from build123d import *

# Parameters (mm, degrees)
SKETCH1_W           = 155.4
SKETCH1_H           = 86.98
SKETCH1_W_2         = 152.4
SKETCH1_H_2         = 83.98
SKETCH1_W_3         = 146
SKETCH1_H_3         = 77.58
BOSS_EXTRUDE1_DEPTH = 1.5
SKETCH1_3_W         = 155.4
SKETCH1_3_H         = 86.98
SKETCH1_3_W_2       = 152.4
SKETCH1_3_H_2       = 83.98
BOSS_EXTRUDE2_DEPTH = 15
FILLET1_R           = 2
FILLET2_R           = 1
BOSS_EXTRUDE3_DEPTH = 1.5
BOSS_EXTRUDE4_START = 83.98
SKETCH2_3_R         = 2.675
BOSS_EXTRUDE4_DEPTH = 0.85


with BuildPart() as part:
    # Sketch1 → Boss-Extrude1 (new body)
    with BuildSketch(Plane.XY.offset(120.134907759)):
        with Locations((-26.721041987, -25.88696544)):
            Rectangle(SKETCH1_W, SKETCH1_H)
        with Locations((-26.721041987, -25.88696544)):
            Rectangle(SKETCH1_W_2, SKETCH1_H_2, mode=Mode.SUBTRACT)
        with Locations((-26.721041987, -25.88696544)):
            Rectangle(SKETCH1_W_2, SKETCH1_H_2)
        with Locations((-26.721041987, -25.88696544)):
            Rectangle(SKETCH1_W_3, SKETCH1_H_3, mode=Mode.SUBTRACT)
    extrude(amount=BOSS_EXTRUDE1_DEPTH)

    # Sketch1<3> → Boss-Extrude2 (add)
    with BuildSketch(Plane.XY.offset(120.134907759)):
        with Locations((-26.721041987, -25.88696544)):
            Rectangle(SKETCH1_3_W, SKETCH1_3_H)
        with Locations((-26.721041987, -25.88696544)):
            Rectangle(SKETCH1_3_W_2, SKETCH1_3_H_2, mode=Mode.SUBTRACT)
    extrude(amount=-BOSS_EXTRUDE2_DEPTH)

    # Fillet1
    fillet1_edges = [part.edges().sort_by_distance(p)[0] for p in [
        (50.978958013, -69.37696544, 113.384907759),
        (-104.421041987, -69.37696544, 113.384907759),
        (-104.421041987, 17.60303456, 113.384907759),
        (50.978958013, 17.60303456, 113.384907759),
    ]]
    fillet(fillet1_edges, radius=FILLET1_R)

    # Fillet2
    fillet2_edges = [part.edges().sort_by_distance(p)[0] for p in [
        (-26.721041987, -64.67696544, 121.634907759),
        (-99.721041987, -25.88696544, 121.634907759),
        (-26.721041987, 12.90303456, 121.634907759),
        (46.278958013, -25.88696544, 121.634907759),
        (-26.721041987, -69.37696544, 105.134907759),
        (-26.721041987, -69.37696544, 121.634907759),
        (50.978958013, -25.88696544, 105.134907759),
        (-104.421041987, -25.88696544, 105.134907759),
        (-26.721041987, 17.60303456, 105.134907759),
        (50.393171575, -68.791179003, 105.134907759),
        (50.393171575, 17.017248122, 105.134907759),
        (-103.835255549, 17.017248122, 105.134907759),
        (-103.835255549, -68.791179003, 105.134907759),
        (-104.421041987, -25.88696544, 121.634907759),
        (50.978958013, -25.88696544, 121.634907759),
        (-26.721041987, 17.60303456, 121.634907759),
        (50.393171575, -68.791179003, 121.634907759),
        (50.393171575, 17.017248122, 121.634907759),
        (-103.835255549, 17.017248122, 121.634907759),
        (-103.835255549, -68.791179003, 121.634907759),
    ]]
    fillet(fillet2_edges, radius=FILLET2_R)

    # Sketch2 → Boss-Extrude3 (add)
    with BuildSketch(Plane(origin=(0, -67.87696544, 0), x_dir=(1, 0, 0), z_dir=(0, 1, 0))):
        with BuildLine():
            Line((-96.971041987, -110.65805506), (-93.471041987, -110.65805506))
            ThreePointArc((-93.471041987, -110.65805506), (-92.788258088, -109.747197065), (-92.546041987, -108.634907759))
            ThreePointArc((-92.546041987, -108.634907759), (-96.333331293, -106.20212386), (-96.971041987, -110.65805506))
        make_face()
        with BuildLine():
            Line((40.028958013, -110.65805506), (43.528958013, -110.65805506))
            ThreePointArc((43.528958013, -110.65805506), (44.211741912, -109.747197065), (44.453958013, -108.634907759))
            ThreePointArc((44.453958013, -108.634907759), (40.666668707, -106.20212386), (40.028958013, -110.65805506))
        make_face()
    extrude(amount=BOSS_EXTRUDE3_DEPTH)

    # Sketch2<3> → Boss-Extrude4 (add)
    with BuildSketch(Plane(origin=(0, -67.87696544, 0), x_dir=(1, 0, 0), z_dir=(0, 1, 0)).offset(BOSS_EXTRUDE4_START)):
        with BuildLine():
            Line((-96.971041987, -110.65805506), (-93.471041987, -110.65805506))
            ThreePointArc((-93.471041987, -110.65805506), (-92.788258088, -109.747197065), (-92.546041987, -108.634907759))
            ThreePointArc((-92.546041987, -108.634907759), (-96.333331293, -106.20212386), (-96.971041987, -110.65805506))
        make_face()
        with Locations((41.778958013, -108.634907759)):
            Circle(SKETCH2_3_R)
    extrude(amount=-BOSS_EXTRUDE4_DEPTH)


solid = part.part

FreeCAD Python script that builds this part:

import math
import FreeCAD as App
import Part
import Sketcher

V = App.Vector


def edges_at(feature, points):
    """Names of the edges that pass closest to the given points."""
    edges = feature.Shape.Edges
    near = lambda p: min(range(len(edges)), key=lambda i: edges[i].distToShape(Part.Vertex(*p))[0])
    return sorted({f"Edge{near(p) + 1}" for p in points})


def add_polygon(sketch, points):
    """Adds a closed chain of lines whose ends are joined by coincident constraints."""
    first, n = sketch.GeometryCount, len(points)
    for a, b in zip(points, points[1:] + points[:1]):
        sketch.addGeometry(Part.LineSegment(App.Vector(*a, 0), App.Vector(*b, 0)), False)
    for i in range(n):
        sketch.addConstraint(Sketcher.Constraint("Coincident", first + i, 2, first + (i + 1) % n, 1))

doc = App.newDocument("Part")
body = doc.addObject("PartDesign::Body", "Body")

# Sketch on XY plane
sketch1 = body.newObject("Sketcher::SketchObject", "Sketch")
sketch1.AttachmentSupport = (doc.getObject("XY_Plane"), [""])
sketch1.MapMode = "FlatFace"
sketch1.AttachmentOffset = App.Placement(V(0, 0, 120.134908), App.Rotation())
add_polygon(sketch1, [(-104, 18), (-104, -69), (51, -69), (51, 18)])  # lines 0-3
add_polygon(sketch1, [(46, -65), (-100, -65), (-100, 13), (46, 13)])  # lines 4-7
sketch1.addConstraint(Sketcher.Constraint("Vertical", 0))
sketch1.addConstraint(Sketcher.Constraint("Horizontal", 1))
sketch1.addConstraint(Sketcher.Constraint("Vertical", 2))
sketch1.addConstraint(Sketcher.Constraint("Horizontal", 3))
sketch1.addConstraint(Sketcher.Constraint("Horizontal", 4))
sketch1.addConstraint(Sketcher.Constraint("Vertical", 5))
sketch1.addConstraint(Sketcher.Constraint("Horizontal", 6))
sketch1.addConstraint(Sketcher.Constraint("Vertical", 7))
sketch1.addConstraint(Sketcher.Constraint("DistanceX", 4, 2, 4, 1, 146.0))
sketch1.addConstraint(Sketcher.Constraint("DistanceX", 1, 1, 1, 2, 155.4))
sketch1.addConstraint(Sketcher.Constraint("DistanceY", 0, 2, 0, 1, 86.98))
sketch1.addConstraint(Sketcher.Constraint("DistanceY", 5, 1, 5, 2, 77.58))
sketch1.addConstraint(Sketcher.Constraint("DistanceX", 0, 2, 4, 2, 4.7))
sketch1.addConstraint(Sketcher.Constraint("DistanceY", 0, 2, 4, 2, 4.7))
sketch1.addConstraint(Sketcher.Constraint("DistanceX", 0, 2, -1, 1, 104.421042))
sketch1.addConstraint(Sketcher.Constraint("DistanceY", 0, 2, -1, 1, 69.376965))
pad1 = body.newObject("PartDesign::Pad", "Pad")
pad1.Profile = sketch1
pad1.Length = 1.5

# Sketch on XY plane
sketch2 = body.newObject("Sketcher::SketchObject", "Sketch001")
sketch2.AttachmentSupport = (doc.getObject("XY_Plane"), [""])
sketch2.MapMode = "FlatFace"
sketch2.AttachmentOffset = App.Placement(V(0, 0, 120.134908), App.Rotation())
add_polygon(sketch2, [(-104, 18), (-104, -69), (51, -69), (51, 18)])  # lines 0-3
add_polygon(sketch2, [(49, -68), (-103, -68), (-103, 16), (49, 16)])  # lines 4-7
sketch2.addConstraint(Sketcher.Constraint("Vertical", 0))
sketch2.addConstraint(Sketcher.Constraint("Horizontal", 1))
sketch2.addConstraint(Sketcher.Constraint("Vertical", 2))
sketch2.addConstraint(Sketcher.Constraint("Horizontal", 3))
sketch2.addConstraint(Sketcher.Constraint("Horizontal", 4))
sketch2.addConstraint(Sketcher.Constraint("Vertical", 5))
sketch2.addConstraint(Sketcher.Constraint("Horizontal", 6))
sketch2.addConstraint(Sketcher.Constraint("Vertical", 7))
sketch2.addConstraint(Sketcher.Constraint("DistanceX", 1, 1, 1, 2, 155.4))
sketch2.addConstraint(Sketcher.Constraint("DistanceX", 4, 2, 4, 1, 152.4))
sketch2.addConstraint(Sketcher.Constraint("DistanceY", 0, 2, 0, 1, 86.98))
sketch2.addConstraint(Sketcher.Constraint("DistanceY", 5, 1, 5, 2, 83.98))
sketch2.addConstraint(Sketcher.Constraint("DistanceX", 0, 2, 4, 2, 1.5))
sketch2.addConstraint(Sketcher.Constraint("DistanceY", 0, 2, 4, 2, 1.5))
sketch2.addConstraint(Sketcher.Constraint("DistanceX", 0, 2, -1, 1, 104.421042))
sketch2.addConstraint(Sketcher.Constraint("DistanceY", 0, 2, -1, 1, 69.376965))
pad2 = body.newObject("PartDesign::Pad", "Pad001")
pad2.Profile = sketch2
pad2.Length = 15
pad2.Reversed = True
doc.recompute()

fillet = body.newObject("PartDesign::Fillet", "Fillet")
fillet.Base = (pad2, edges_at(pad2, [
    (50.979, -69.377, 113.385),
    (-104.421, -69.377, 113.385),
    (-104.421, 17.603, 113.385),
    (50.979, 17.603, 113.385),
]))
fillet.Radius = 2
doc.recompute()

fillet2 = body.newObject("PartDesign::Fillet", "Fillet001")
fillet2.Base = (fillet, edges_at(fillet, [
    (-26.721, -64.677, 121.635),
    (-99.721, -25.887, 121.635),
    (-26.721, 12.903, 121.635),
    (46.279, -25.887, 121.635),
    (-26.721, -69.377, 105.135),
    (-26.721, -69.377, 121.635),
    (50.979, -25.887, 105.135),
    (-104.421, -25.887, 105.135),
    (-26.721, 17.603, 105.135),
    (50.393, -68.791, 105.135),
    (50.393, 17.017, 105.135),
    (-103.835, 17.017, 105.135),
    (-103.835, -68.791, 105.135),
    (-104.421, -25.887, 121.635),
    (50.979, -25.887, 121.635),
    (-26.721, 17.603, 121.635),
    (50.393, -68.791, 121.635),
    (50.393, 17.017, 121.635),
    (-103.835, 17.017, 121.635),
    (-103.835, -68.791, 121.635),
]))
fillet2.Radius = 1

# Sketch on XZ plane
sketch3 = body.newObject("Sketcher::SketchObject", "Sketch002")
sketch3.AttachmentSupport = (doc.getObject("XZ_Plane"), [""])
sketch3.MapMode = "FlatFace"
sketch3.AttachmentOffset = App.Placement(V(0, 0, 67.876965), App.Rotation())
sketch3.addGeometry(Part.LineSegment(V(-97, 110.7, 0), V(-93.5, 110.7, 0)), False)
sketch3.addGeometry(Part.ArcOfCircle(Part.Circle(V(-95.2, 108.6, 0), V(0, 0, 1), 2.7), math.radians(0), math.radians(49)), False)
sketch3.addGeometry(Part.ArcOfCircle(Part.Circle(V(-95.2, 108.6, 0), V(0, 0, 1), 2.7), math.radians(131), math.radians(360)), False)
sketch3.addGeometry(Part.LineSegment(V(40, 110.7, 0), V(43.5, 110.7, 0)), False)
sketch3.addGeometry(Part.ArcOfCircle(Part.Circle(V(41.8, 108.6, 0), V(0, 0, 1), 2.7), math.radians(0), math.radians(49)), False)
sketch3.addGeometry(Part.ArcOfCircle(Part.Circle(V(41.8, 108.6, 0), V(0, 0, 1), 2.7), math.radians(131), math.radians(360)), False)
sketch3.addConstraint(Sketcher.Constraint("Coincident", 0, 2, 1, 2))
sketch3.addConstraint(Sketcher.Constraint("Tangent", 1, 1, 2, 2))
sketch3.addConstraint(Sketcher.Constraint("Coincident", 2, 1, 0, 1))
sketch3.addConstraint(Sketcher.Constraint("Coincident", 3, 2, 4, 2))
sketch3.addConstraint(Sketcher.Constraint("Tangent", 4, 1, 5, 2))
sketch3.addConstraint(Sketcher.Constraint("Coincident", 5, 1, 3, 1))
sketch3.addConstraint(Sketcher.Constraint("Horizontal", 0))
sketch3.addConstraint(Sketcher.Constraint("Horizontal", 3))
sketch3.addConstraint(Sketcher.Constraint("Equal", 1, 2))
sketch3.addConstraint(Sketcher.Constraint("Equal", 2, 4))
sketch3.addConstraint(Sketcher.Constraint("Equal", 4, 5))
sketch3.addConstraint(Sketcher.Constraint("Horizontal", 2, 3, 4, 3))
sketch3.addConstraint(Sketcher.Constraint("Horizontal", 5, 3, 1, 1))
sketch3.addConstraint(Sketcher.Constraint("Horizontal", 2, 1, 3, 2))
sketch3.addConstraint(Sketcher.Constraint("Horizontal", 1, 1, 4, 1))
sketch3.addConstraint(Sketcher.Constraint("DistanceX", 0, 1, 0, 2, 3.5))
sketch3.addConstraint(Sketcher.Constraint("Radius", 1, 2.675))
sketch3.addConstraint(Sketcher.Constraint("DistanceX", 2, 3, 4, 3, 137.0))
sketch3.addConstraint(Sketcher.Constraint("DistanceX", 1, 3, -1, 1, 95.221042))
sketch3.addConstraint(Sketcher.Constraint("DistanceY", -1, 1, 1, 3, 108.634908))
pad3 = body.newObject("PartDesign::Pad", "Pad002")
pad3.Profile = sketch3
pad3.Length = 1.5
pad3.Reversed = True

# Sketch on XZ plane
sketch4 = body.newObject("Sketcher::SketchObject", "Sketch003")
sketch4.AttachmentSupport = (doc.getObject("XZ_Plane"), [""])
sketch4.MapMode = "FlatFace"
sketch4.AttachmentOffset = App.Placement(V(0, 0, -16.103035), App.Rotation())
sketch4.addGeometry(Part.LineSegment(V(-97, 110.7, 0), V(-93.5, 110.7, 0)), False)
sketch4.addGeometry(Part.ArcOfCircle(Part.Circle(V(-95.2, 108.6, 0), V(0, 0, 1), 2.7), math.radians(0), math.radians(49)), False)
sketch4.addGeometry(Part.ArcOfCircle(Part.Circle(V(-95.2, 108.6, 0), V(0, 0, 1), 2.7), math.radians(131), math.radians(360)), False)
sketch4.addGeometry(Part.Circle(V(41.8, 108.6, 0), V(0, 0, 1), 2.7), False)
sketch4.addConstraint(Sketcher.Constraint("Coincident", 0, 2, 1, 2))
sketch4.addConstraint(Sketcher.Constraint("Tangent", 1, 1, 2, 2))
sketch4.addConstraint(Sketcher.Constraint("Coincident", 2, 1, 0, 1))
sketch4.addConstraint(Sketcher.Constraint("Horizontal", 0))
sketch4.addConstraint(Sketcher.Constraint("Equal", 1, 2))
sketch4.addConstraint(Sketcher.Constraint("Equal", 2, 3))
sketch4.addConstraint(Sketcher.Constraint("Horizontal", 2, 3, 3, 3))
sketch4.addConstraint(Sketcher.Constraint("Horizontal", 3, 3, 1, 1))
sketch4.addConstraint(Sketcher.Constraint("Diameter", 3, 5.35))
sketch4.addConstraint(Sketcher.Constraint("DistanceX", 0, 1, 0, 2, 3.5))
sketch4.addConstraint(Sketcher.Constraint("DistanceX", 2, 3, 3, 3, 137.0))
sketch4.addConstraint(Sketcher.Constraint("DistanceX", 1, 3, -1, 1, 95.221042))
sketch4.addConstraint(Sketcher.Constraint("DistanceY", -1, 1, 1, 3, 108.634908))
pad4 = body.newObject("PartDesign::Pad", "Pad003")
pad4.Profile = sketch4
pad4.Length = 0.85

doc.recompute()
